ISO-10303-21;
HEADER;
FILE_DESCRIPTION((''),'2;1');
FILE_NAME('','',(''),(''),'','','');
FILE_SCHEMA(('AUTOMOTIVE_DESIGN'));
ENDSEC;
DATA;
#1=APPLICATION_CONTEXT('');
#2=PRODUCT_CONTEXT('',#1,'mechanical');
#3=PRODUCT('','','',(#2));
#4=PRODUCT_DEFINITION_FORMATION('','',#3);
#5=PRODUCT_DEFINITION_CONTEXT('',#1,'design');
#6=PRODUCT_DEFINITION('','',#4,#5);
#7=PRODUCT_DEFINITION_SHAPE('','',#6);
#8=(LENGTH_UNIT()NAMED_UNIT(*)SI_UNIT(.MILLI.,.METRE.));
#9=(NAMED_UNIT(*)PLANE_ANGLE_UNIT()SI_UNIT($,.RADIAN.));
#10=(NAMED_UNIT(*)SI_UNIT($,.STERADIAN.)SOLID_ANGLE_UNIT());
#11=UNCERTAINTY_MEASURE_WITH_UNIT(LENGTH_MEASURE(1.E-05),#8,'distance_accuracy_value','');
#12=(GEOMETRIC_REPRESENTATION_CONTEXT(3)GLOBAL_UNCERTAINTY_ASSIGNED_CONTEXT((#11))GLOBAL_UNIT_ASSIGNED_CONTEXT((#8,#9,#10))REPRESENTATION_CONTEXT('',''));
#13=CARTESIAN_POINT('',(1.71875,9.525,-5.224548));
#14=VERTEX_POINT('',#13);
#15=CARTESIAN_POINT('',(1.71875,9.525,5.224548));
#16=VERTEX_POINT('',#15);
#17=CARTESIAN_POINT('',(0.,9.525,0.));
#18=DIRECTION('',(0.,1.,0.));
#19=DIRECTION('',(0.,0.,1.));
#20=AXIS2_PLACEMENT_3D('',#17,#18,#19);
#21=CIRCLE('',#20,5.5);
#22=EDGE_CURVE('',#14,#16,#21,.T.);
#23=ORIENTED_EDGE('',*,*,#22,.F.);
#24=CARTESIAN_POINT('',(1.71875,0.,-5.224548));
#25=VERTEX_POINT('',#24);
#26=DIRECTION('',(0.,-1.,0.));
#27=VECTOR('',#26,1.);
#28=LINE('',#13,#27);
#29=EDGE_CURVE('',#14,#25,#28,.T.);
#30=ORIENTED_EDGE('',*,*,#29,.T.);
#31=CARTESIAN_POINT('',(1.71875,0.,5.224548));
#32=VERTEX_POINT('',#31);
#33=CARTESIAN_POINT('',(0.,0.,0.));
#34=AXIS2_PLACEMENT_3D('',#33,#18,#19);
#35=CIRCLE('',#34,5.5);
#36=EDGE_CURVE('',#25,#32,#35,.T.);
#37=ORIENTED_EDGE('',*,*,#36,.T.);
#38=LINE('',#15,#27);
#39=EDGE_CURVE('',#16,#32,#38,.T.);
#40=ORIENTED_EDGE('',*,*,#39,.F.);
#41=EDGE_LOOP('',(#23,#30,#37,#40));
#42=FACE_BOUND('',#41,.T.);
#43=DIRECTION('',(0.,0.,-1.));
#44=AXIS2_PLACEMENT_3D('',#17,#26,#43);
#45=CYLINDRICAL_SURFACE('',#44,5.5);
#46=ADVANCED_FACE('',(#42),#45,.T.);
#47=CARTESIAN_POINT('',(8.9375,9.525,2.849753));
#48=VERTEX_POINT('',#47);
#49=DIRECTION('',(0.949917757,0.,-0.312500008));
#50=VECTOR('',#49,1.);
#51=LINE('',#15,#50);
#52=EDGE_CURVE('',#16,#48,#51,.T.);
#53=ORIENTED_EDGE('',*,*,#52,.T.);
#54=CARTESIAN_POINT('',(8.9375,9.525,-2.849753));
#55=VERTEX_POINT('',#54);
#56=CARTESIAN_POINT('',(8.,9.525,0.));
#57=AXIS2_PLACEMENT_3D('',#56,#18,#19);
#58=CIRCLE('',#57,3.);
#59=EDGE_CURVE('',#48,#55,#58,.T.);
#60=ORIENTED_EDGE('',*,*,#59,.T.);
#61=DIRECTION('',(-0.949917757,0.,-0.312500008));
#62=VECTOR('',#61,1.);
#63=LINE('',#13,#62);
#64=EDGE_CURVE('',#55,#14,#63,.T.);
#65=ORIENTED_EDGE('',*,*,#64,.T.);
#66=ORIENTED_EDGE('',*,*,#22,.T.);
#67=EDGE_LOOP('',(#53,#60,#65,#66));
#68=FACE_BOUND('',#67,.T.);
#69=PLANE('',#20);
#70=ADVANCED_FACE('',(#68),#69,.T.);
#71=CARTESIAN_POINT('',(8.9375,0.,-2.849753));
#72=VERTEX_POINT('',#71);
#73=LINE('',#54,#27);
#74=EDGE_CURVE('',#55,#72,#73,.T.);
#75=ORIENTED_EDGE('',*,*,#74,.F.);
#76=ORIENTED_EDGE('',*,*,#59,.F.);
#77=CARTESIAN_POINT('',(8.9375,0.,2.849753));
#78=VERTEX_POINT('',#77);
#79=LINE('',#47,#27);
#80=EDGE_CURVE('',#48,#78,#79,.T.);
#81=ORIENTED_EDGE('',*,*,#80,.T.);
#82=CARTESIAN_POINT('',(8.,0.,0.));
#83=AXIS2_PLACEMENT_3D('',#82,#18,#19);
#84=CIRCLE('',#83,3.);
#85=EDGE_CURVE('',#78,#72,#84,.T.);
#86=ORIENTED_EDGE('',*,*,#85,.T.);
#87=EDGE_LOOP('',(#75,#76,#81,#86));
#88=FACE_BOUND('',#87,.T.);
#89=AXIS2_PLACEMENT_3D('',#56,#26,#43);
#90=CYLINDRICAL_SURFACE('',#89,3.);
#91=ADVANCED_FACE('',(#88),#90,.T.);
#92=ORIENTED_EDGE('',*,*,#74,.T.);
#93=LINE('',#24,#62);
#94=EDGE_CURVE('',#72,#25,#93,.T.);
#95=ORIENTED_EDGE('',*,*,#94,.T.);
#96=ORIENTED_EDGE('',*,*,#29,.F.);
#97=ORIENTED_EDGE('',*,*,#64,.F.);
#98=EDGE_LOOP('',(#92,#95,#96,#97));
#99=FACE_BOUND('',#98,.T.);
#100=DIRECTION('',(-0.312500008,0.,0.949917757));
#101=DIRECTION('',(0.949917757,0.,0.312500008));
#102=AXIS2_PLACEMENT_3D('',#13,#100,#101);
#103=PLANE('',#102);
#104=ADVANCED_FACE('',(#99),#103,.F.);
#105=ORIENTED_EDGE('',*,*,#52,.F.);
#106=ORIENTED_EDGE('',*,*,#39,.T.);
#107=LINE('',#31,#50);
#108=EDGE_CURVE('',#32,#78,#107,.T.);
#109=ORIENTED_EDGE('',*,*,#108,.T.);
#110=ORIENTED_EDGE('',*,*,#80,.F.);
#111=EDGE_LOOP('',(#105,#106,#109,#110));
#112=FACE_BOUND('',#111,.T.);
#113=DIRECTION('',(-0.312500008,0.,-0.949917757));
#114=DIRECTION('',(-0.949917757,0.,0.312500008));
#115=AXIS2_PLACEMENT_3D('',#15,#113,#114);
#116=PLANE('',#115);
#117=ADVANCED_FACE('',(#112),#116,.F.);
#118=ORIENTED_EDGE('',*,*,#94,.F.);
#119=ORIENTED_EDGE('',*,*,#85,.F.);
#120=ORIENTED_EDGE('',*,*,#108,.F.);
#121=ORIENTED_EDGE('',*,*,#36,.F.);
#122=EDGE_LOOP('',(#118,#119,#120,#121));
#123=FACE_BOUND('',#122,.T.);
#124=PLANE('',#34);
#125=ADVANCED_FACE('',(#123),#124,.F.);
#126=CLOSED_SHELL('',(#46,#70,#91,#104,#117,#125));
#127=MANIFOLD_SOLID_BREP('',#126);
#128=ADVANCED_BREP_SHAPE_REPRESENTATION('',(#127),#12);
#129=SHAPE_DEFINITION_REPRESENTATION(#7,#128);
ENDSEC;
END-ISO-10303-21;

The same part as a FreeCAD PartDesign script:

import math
import FreeCAD as App
import Part
import Sketcher
from FreeCAD import Vector

doc = App.newDocument("Part")
params = doc.addObject("Spreadsheet::Sheet", "Params")
for row, (alias, value) in enumerate([
    ("sketch1_radius", "3 mm"),
    ("sketch1_radius2", "5.5 mm"),
    ("pad1_length", "9.525 mm"),
], start=1):
    params.set(f"A{row}", alias)
    params.set(f"B{row}", "=" + value)
    params.setAlias(f"B{row}", alias)

body = doc.addObject("PartDesign::Body", "Body")

# Sketch on XZ plane
sketch1 = body.newObject("Sketcher::SketchObject", "Sketch")
sketch1.AttachmentSupport = (doc.getObject("XZ_Plane"), [""])
sketch1.MapMode = "FlatFace"
sketch1.addGeometry([
    Part.LineSegment(Vector(8.9375, -2.849753, 0), Vector(1.71875, -5.224548, 0)),
    Part.ArcOfCircle(Part.Circle(Vector(0, 0, 0), Vector(0, 0, 1), 5.5), math.radians(71.790043), math.radians(288.209957)),
    Part.LineSegment(Vector(1.71875, 5.224548, 0), Vector(8.9375, 2.849753, 0)),
    Part.ArcOfCircle(Part.Circle(Vector(8, 0, 0), Vector(0, 0, 1), 3), math.radians(-71.790043), math.radians(71.790043)),
], False)
sketch1.addConstraint([
    Sketcher.Constraint("Tangent", 0, 2, 1, 2),
    Sketcher.Constraint("Tangent", 1, 1, 2, 1),
    Sketcher.Constraint("Tangent", 2, 2, 3, 2),
    Sketcher.Constraint("Tangent", 3, 1, 0, 1),
    Sketcher.Constraint("Coincident", 1, 3, -1, 1),
    Sketcher.Constraint("PointOnObject", 3, 3, -1),
    Sketcher.Constraint("Radius", 3, 3.0),
    Sketcher.Constraint("Radius", 1, 5.5),
    Sketcher.Constraint("DistanceX", -1, 1, 3, 3, 8.0),
])
sketch1.setExpression("Constraints[6]", "Params.sketch1_radius")
sketch1.setExpression("Constraints[7]", "Params.sketch1_radius2")
pad1 = body.newObject("PartDesign::Pad", "Pad")
pad1.Profile = sketch1
pad1.setExpression("Length", "Params.pad1_length")
pad1.Reversed = True

doc.recompute()
